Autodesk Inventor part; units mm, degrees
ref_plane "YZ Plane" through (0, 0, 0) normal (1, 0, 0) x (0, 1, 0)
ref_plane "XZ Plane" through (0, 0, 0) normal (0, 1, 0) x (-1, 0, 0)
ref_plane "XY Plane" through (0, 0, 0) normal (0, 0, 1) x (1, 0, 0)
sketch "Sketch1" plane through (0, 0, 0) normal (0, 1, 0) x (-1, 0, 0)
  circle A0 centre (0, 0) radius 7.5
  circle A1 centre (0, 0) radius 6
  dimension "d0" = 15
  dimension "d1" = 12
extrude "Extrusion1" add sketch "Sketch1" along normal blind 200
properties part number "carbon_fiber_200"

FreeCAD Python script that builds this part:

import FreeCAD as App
import Part
import Sketcher
from FreeCAD import Vector
Q = App.Units.Quantity

doc = App.newDocument("Part")
params = doc.addObject("Spreadsheet::Sheet", "Params")
for row, (alias, value) in enumerate([
    ("sketch1_diameter", "15 mm"),
    ("sketch1_diameter2", "12 mm"),
    ("pad1_length", "200 mm"),
], start=1):
    params.set(f"A{row}", alias)
    params.set(f"B{row}", "=" + value)
    params.setAlias(f"B{row}", alias)

body = doc.addObject("PartDesign::Body", "Body")

# Sketch on XZ plane
sketch1 = doc.addObject("Sketcher::SketchObject", "Sketch")
body.addObject(sketch1)
sketch1.AttachmentSupport = (doc.XZ_Plane, [""])
sketch1.MapMode = "FlatFace"
sketch1.addGeometry([
    Part.Circle(Vector(0, 0, 0), Vector(0, 0, 1), 8),
    Part.Circle(Vector(0, 0, 0), Vector(0, 0, 1), 6),
], False)
sketch1.addConstraint([
    Sketcher.Constraint("Coincident", 0, 3, -1, 1),
    Sketcher.Constraint("Coincident", 1, 3, -1, 1),
    Sketcher.Constraint("Diameter", 0, Q("15 mm")),
    Sketcher.Constraint("Diameter", 1, Q("12 mm")),
])
sketch1.setExpression("Constraints[2]", "Params.sketch1_diameter")
sketch1.setExpression("Constraints[3]", "Params.sketch1_diameter2")
pad1 = doc.addObject("PartDesign::Pad", "Pad")
body.addObject(pad1)
pad1.Profile = sketch1
pad1.setExpression("Length", "Params.pad1_length")
pad1.Reversed = True

doc.recompute()
